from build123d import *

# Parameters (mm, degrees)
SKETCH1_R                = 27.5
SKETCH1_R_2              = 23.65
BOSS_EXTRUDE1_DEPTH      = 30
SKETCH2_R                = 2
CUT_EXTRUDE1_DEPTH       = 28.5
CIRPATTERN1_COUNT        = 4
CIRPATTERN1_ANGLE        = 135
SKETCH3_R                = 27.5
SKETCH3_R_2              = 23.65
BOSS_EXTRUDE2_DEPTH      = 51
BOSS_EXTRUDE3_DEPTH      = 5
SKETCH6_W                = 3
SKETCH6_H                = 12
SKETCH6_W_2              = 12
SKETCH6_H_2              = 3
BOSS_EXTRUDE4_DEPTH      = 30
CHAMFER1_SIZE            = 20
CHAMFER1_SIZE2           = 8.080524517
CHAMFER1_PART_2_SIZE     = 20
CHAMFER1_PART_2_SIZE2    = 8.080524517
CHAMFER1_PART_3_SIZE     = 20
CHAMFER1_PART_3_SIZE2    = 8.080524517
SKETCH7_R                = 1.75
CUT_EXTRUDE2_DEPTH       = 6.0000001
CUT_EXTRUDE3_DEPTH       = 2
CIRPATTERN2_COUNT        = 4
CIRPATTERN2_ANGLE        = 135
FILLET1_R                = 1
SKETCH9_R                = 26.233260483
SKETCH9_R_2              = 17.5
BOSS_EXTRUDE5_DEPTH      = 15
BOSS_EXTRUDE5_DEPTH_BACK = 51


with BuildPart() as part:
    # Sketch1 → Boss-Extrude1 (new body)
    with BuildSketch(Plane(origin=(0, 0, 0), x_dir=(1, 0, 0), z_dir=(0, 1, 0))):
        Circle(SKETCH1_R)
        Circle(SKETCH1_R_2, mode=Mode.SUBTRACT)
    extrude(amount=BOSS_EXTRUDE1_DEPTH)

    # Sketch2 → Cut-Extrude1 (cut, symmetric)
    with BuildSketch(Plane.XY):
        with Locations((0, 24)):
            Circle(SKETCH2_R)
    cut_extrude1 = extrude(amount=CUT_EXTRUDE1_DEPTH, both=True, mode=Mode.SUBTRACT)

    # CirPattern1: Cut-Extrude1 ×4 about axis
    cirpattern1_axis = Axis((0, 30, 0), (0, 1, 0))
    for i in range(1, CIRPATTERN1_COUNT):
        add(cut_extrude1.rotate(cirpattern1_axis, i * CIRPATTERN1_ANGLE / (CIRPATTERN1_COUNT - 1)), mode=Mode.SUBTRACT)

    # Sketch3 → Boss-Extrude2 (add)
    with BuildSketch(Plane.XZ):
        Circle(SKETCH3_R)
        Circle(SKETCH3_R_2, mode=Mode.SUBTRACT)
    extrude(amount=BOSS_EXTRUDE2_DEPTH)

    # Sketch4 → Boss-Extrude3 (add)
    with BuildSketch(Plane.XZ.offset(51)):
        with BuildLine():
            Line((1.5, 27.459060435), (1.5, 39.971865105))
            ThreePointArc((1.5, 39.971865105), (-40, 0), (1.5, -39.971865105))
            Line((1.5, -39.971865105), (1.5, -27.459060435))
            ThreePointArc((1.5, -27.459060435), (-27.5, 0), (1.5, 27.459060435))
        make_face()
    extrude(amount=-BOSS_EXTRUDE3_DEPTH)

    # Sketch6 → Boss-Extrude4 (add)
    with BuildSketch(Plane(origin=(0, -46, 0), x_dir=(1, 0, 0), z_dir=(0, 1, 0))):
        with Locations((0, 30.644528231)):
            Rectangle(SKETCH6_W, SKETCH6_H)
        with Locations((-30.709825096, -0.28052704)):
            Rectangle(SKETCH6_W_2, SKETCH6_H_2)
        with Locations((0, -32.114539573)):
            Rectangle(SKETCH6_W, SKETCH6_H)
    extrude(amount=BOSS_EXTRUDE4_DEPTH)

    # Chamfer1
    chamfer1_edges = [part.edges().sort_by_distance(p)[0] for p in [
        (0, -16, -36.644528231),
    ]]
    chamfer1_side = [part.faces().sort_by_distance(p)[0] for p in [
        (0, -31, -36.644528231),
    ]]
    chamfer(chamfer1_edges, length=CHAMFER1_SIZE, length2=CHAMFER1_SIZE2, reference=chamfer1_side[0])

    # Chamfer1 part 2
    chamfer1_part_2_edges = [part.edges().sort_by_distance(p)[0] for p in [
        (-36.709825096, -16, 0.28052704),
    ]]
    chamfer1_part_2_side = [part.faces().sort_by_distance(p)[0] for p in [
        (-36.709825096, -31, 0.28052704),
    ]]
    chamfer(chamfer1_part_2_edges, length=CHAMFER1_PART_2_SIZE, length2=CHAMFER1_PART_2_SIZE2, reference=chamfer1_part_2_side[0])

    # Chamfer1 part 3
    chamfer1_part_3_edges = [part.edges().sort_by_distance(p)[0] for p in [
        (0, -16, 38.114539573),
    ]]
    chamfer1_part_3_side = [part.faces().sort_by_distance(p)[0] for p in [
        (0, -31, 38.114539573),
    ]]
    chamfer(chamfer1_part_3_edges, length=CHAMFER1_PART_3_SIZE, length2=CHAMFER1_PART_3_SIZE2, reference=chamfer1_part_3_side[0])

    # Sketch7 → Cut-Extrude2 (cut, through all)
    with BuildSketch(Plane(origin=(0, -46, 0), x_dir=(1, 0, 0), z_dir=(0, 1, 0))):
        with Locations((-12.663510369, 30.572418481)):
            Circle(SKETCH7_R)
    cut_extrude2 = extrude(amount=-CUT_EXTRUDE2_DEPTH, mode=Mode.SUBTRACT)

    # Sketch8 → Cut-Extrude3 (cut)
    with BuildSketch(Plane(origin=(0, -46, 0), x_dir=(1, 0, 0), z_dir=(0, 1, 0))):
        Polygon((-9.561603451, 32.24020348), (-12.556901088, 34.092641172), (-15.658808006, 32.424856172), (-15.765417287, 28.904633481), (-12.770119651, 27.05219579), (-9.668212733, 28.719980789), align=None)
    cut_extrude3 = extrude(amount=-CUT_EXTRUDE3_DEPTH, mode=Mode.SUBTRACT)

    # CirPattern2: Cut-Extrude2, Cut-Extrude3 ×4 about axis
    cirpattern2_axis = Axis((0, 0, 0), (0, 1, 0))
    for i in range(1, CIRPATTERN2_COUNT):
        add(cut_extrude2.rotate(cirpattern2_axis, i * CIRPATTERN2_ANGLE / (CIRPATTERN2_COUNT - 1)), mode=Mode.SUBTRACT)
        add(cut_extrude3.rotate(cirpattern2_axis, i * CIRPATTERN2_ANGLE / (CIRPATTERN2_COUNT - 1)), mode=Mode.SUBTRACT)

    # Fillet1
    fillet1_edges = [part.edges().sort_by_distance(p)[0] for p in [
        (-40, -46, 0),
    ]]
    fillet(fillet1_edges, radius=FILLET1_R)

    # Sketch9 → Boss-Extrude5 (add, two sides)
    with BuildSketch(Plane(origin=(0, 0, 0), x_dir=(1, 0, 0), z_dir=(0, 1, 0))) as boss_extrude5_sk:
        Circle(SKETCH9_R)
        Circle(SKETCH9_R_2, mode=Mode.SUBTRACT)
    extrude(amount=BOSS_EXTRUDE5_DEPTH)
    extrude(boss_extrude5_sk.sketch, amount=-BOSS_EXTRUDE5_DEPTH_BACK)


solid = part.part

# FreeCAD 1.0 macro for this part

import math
import FreeCAD as App
import Part
import Sketcher
from FreeCAD import Vector
Q = App.Units.Quantity


def edges_at(feature, points):
    """Names of the edges that pass closest to the given points."""
    edges = feature.Shape.Edges
    near = lambda p: min(range(len(edges)), key=lambda i: edges[i].distToShape(Part.Vertex(*p))[0])
    return sorted({f"Edge{near(p) + 1}" for p in points})


def add_polygon(sketch, points):
    """Adds a closed chain of lines whose ends are joined by coincident constraints."""
    first, n = sketch.GeometryCount, len(points)
    for a, b in zip(points, points[1:] + points[:1]):
        sketch.addGeometry(Part.LineSegment(App.Vector(*a, 0), App.Vector(*b, 0)), False)
    for i in range(n):
        sketch.addConstraint(Sketcher.Constraint("Coincident", first + i, 2, first + (i + 1) % n, 1))

doc = App.newDocument("Part")
body = doc.addObject("PartDesign::Body", "Body")

# Sketch on XZ plane
sketch1 = body.newObject("Sketcher::SketchObject", "Sketch")
sketch1.AttachmentSupport = (doc.getObject("XZ_Plane"), [""])
sketch1.MapMode = "FlatFace"
sketch1.addGeometry(Part.Circle(Vector(0, 0, 0), Vector(0, 0, 1), 28), False)
sketch1.addGeometry(Part.Circle(Vector(0, 0, 0), Vector(0, 0, 1), 24), False)
sketch1.addConstraint(Sketcher.Constraint("Coincident", 0, 3, -1, 1))
sketch1.addConstraint(Sketcher.Constraint("Coincident", 1, 3, -1, 1))
sketch1.addConstraint(Sketcher.Constraint("Diameter", 0, Q("55 mm")))
sketch1.addConstraint(Sketcher.Constraint("Diameter", 1, Q("47.3 mm")))
pad1 = body.newObject("PartDesign::Pad", "Pad")
pad1.Profile = sketch1
pad1.Length = 30
pad1.Reversed = True

# Sketch on XY plane
sketch2 = body.newObject("Sketcher::SketchObject", "Sketch001")
sketch2.AttachmentSupport = (doc.getObject("XY_Plane"), [""])
sketch2.MapMode = "FlatFace"
sketch2.addGeometry(Part.Circle(Vector(0, 24, 0), Vector(0, 0, 1), 2), False)
sketch2.addConstraint(Sketcher.Constraint("PointOnObject", 0, 3, -2))
sketch2.addConstraint(Sketcher.Constraint("Diameter", 0, Q("4 mm")))
sketch2.addConstraint(Sketcher.Constraint("DistanceY", -1, 1, 0, 3, Q("24 mm")))
pocket1 = body.newObject("PartDesign::Pocket", "Pocket")
pocket1.Profile = sketch2
pocket1.Length = 57
pocket1.Midplane = True
doc.recompute()

polarpattern = body.newObject("PartDesign::PolarPattern", "PolarPattern")
polarpattern.Originals = [pocket1]
polarpattern.Axis = (doc.getObject("Y_Axis"), [""])
polarpattern.Angle = 135
polarpattern.Occurrences = 4
body.Tip = polarpattern

# Sketch on XZ plane
sketch3 = body.newObject("Sketcher::SketchObject", "Sketch002")
sketch3.AttachmentSupport = (doc.getObject("XZ_Plane"), [""])
sketch3.MapMode = "FlatFace"
sketch3.addGeometry(Part.Circle(Vector(0, 0, 0), Vector(0, 0, 1), 28), False)
sketch3.addGeometry(Part.Circle(Vector(0, 0, 0), Vector(0, 0, 1), 24), False)
sketch3.addConstraint(Sketcher.Constraint("Coincident", 0, 3, -1, 1))
sketch3.addConstraint(Sketcher.Constraint("Coincident", 1, 3, -1, 1))
sketch3.addConstraint(Sketcher.Constraint("Diameter", 0, Q("55 mm")))
sketch3.addConstraint(Sketcher.Constraint("Diameter", 1, Q("47.3 mm")))
pad2 = body.newObject("PartDesign::Pad", "Pad001")
pad2.Profile = sketch3
pad2.Length = 51

# Sketch on XZ plane
sketch4 = body.newObject("Sketcher::SketchObject", "Sketch003")
sketch4.AttachmentSupport = (doc.getObject("XZ_Plane"), [""])
sketch4.MapMode = "FlatFace"
sketch4.AttachmentOffset = App.Placement(Vector(0, 0, 51), App.Rotation())
sketch4.addGeometry(Part.LineSegment(Vector(2, 27, 0), Vector(2, 40, 0)), False)
sketch4.addGeometry(Part.ArcOfCircle(Part.Circle(Vector(0, 0, 0), Vector(0, 0, 1), 40), math.radians(88), math.radians(272)), False)
sketch4.addGeometry(Part.LineSegment(Vector(2, -40, 0), Vector(2, -27, 0)), False)
sketch4.addGeometry(Part.ArcOfCircle(Part.Circle(Vector(0, 0, 0), Vector(0, 0, 1), 28), math.radians(87), math.radians(273)), False)
sketch4.addConstraint(Sketcher.Constraint("Coincident", 0, 2, 1, 1))
sketch4.addConstraint(Sketcher.Constraint("Coincident", 1, 2, 2, 1))
sketch4.addConstraint(Sketcher.Constraint("Coincident", 2, 2, 3, 2))
sketch4.addConstraint(Sketcher.Constraint("Coincident", 3, 1, 0, 1))
sketch4.addConstraint(Sketcher.Constraint("Vertical", 0))
sketch4.addConstraint(Sketcher.Constraint("Vertical", 2))
sketch4.addConstraint(Sketcher.Constraint("Coincident", 1, 3, -1, 1))
sketch4.addConstraint(Sketcher.Constraint("Coincident", 3, 3, -1, 1))
sketch4.addConstraint(Sketcher.Constraint("Vertical", 0, 2, 1, 2))
sketch4.addConstraint(Sketcher.Constraint("Radius", 1, Q("40 mm")))
sketch4.addConstraint(Sketcher.Constraint("Radius", 3, Q("27.5 mm")))
sketch4.addConstraint(Sketcher.Constraint("DistanceX", -1, 1, 0, 2, Q("1.5 mm")))
pad3 = body.newObject("PartDesign::Pad", "Pad002")
pad3.Profile = sketch4
pad3.Length = 5
pad3.Reversed = True

# Sketch on XZ plane
sketch5 = body.newObject("Sketcher::SketchObject", "Sketch004")
sketch5.AttachmentSupport = (doc.getObject("XZ_Plane"), [""])
sketch5.MapMode = "FlatFace"
sketch5.AttachmentOffset = App.Placement(Vector(0, 0, 46), App.Rotation())
add_polygon(sketch5, [(-1.5, -36.6), (-1.5, -24.6), (1.5, -24.6), (1.5, -36.6)])  # lines 0-3
add_polygon(sketch5, [(-36.7, -1.2), (-36.7, 1.8), (-24.7, 1.8), (-24.7, -1.2)])  # lines 4-7
add_polygon(sketch5, [(-1.5, 26.1), (-1.5, 38.1), (1.5, 38.1), (1.5, 26.1)])  # lines 8-11
sketch5.addConstraint(Sketcher.Constraint("Vertical", 0))
sketch5.addConstraint(Sketcher.Constraint("Horizontal", 1))
sketch5.addConstraint(Sketcher.Constraint("Vertical", 2))
sketch5.addConstraint(Sketcher.Constraint("Horizontal", 3))
sketch5.addConstraint(Sketcher.Constraint("Vertical", 4))
sketch5.addConstraint(Sketcher.Constraint("Horizontal", 5))
sketch5.addConstraint(Sketcher.Constraint("Vertical", 6))
sketch5.addConstraint(Sketcher.Constraint("Horizontal", 7))
sketch5.addConstraint(Sketcher.Constraint("Vertical", 8))
sketch5.addConstraint(Sketcher.Constraint("Horizontal", 9))
sketch5.addConstraint(Sketcher.Constraint("Vertical", 10))
sketch5.addConstraint(Sketcher.Constraint("Horizontal", 11))
sketch5.addConstraint(Sketcher.Constraint("Vertical", 3, 2, 8, 2))
sketch5.addConstraint(Sketcher.Constraint("Vertical", 2, 2, 9, 2))
sketch5.addConstraint(Sketcher.Constraint("Equal", 7, 0))
sketch5.addConstraint(Sketcher.Constraint("Equal", 11, 4))
sketch5.addConstraint(Sketcher.Constraint("Equal", 2, 8))
sketch5.addConstraint(Sketcher.Constraint("DistanceX", 1, 1, 1, 2, Q("3 mm")))
sketch5.addConstraint(Sketcher.Constraint("DistanceX", 5, 1, 5, 2, Q("12 mm")))
sketch5.addConstraint(Sketcher.Constraint("DistanceX", 0, 2, -1, 1, Q("1.5 mm")))
sketch5.addConstraint(Sketcher.Constraint("DistanceY", 0, 2, -1, 1, Q("24.644528 mm")))
sketch5.addConstraint(Sketcher.Constraint("DistanceY", -1, 1, 8, 2, Q("38.11454 mm")))
sketch5.addConstraint(Sketcher.Constraint("DistanceX", 4, 2, -1, 1, Q("36.709825 mm")))
sketch5.addConstraint(Sketcher.Constraint("DistanceY", -1, 1, 4, 2, Q("1.780527 mm")))
pad4 = body.newObject("PartDesign::Pad", "Pad003")
pad4.Profile = sketch5
pad4.Length = 30
pad4.Reversed = True
doc.recompute()

chamfer = body.newObject("PartDesign::Chamfer", "Chamfer")
chamfer.Base = (pad4, edges_at(pad4, [(0, -16, -36.645)]))
chamfer.ChamferType = "Two distances"
chamfer.Size = 20
chamfer.Size2 = 8.080525
chamfer.FlipDirection = True
doc.recompute()

chamfer2 = body.newObject("PartDesign::Chamfer", "Chamfer001")
chamfer2.Base = (chamfer, edges_at(chamfer, [(-36.71, -16, 0.281)]))
chamfer2.ChamferType = "Two distances"
chamfer2.Size = 20
chamfer2.Size2 = 8.080525
chamfer2.FlipDirection = True
doc.recompute()

chamfer3 = body.newObject("PartDesign::Chamfer", "Chamfer002")
chamfer3.Base = (chamfer2, edges_at(chamfer2, [(0, -16, 38.115)]))
chamfer3.ChamferType = "Two distances"
chamfer3.Size = 20
chamfer3.Size2 = 8.080525
chamfer3.FlipDirection = True

# Sketch on XZ plane
sketch6 = body.newObject("Sketcher::SketchObject", "Sketch005")
sketch6.AttachmentSupport = (doc.getObject("XZ_Plane"), [""])
sketch6.MapMode = "FlatFace"
sketch6.AttachmentOffset = App.Placement(Vector(0, 0, 46), App.Rotation())
sketch6.addGeometry(Part.Circle(Vector(-12.7, -30.6, 0), Vector(0, 0, 1), 1.8), False)
sketch6.addConstraint(Sketcher.Constraint("Diameter", 0, Q("3.5 mm")))
sketch6.addConstraint(Sketcher.Constraint("DistanceX", 0, 3, -1, 1, Q("12.66351 mm")))
sketch6.addConstraint(Sketcher.Constraint("DistanceY", 0, 3, -1, 1, Q("30.572418 mm")))
pocket2 = body.newObject("PartDesign::Pocket", "Pocket001")
pocket2.Profile = sketch6
pocket2.Type = "ThroughAll"
pocket2.Reversed = True

# Sketch on XZ plane
sketch7 = body.newObject("Sketcher::SketchObject", "Sketch006")
sketch7.AttachmentSupport = (doc.getObject("XZ_Plane"), [""])
sketch7.MapMode = "FlatFace"
sketch7.AttachmentOffset = App.Placement(Vector(0, 0, 46), App.Rotation())
add_polygon(sketch7, [(-9.6, -32.2), (-12.6, -34.1), (-15.7, -32.4), (-15.8, -28.9), (-12.8, -27.1), (-9.7, -28.7)])  # lines 0-5
sketch7.addConstraint(Sketcher.Constraint("Parallel", 0, 3))
sketch7.addConstraint(Sketcher.Constraint("Parallel", 1, 4))
sketch7.addConstraint(Sketcher.Constraint("Parallel", 2, 5))
sketch7.addConstraint(Sketcher.Constraint("Equal", 0, 1))
sketch7.addConstraint(Sketcher.Constraint("Equal", 1, 2))
sketch7.addConstraint(Sketcher.Constraint("Equal", 2, 3))
sketch7.addConstraint(Sketcher.Constraint("DistanceX", 0, 2, -1, 1, Q("12.556901 mm")))
sketch7.addConstraint(Sketcher.Constraint("DistanceY", 0, 2, -1, 1, Q("34.092641 mm")))
sketch7.addConstraint(Sketcher.Constraint("DistanceX", 1, 2, -1, 1, Q("15.658808 mm")))
sketch7.addConstraint(Sketcher.Constraint("DistanceX", 3, 2, -1, 1, Q("12.77012 mm")))
sketch7.addConstraint(Sketcher.Constraint("DistanceY", 4, 2, -1, 1, Q("28.719981 mm")))
sketch7.addConstraint(Sketcher.Constraint("DistanceX", 2, 2, 1, 2, Q("0.106609 mm")))
pocket3 = body.newObject("PartDesign::Pocket", "Pocket002")
pocket3.Profile = sketch7
pocket3.Length = 2
pocket3.Reversed = True
doc.recompute()

polarpattern2 = body.newObject("PartDesign::PolarPattern", "PolarPattern001")
polarpattern2.Originals = [pocket2, pocket3]
polarpattern2.Axis = (doc.getObject("Y_Axis"), [""])
polarpattern2.Angle = 135
polarpattern2.Occurrences = 4
body.Tip = polarpattern2
doc.recompute()

fillet = body.newObject("PartDesign::Fillet", "Fillet")
fillet.Base = (polarpattern2, edges_at(polarpattern2, [(-40, -46, 0)]))
fillet.Radius = 1

# Sketch on XZ plane
sketch8 = body.newObject("Sketcher::SketchObject", "Sketch007")
sketch8.AttachmentSupport = (doc.getObject("XZ_Plane"), [""])
sketch8.MapMode = "FlatFace"
sketch8.addGeometry(Part.Circle(Vector(0, 0, 0), Vector(0, 0, 1), 26), False)
sketch8.addGeometry(Part.Circle(Vector(0, 0, 0), Vector(0, 0, 1), 18), False)
sketch8.addConstraint(Sketcher.Constraint("Coincident", 0, 3, -1, 1))
sketch8.addConstraint(Sketcher.Constraint("Coincident", 1, 3, -1, 1))
sketch8.addConstraint(Sketcher.Constraint("Diameter", 1, Q("35 mm")))
sketch8.addConstraint(Sketcher.Constraint("Diameter", 0, Q("52.466521 mm")))
pad5 = body.newObject("PartDesign::Pad", "Pad004")
pad5.Profile = sketch8
pad5.Type = "TwoLengths"
pad5.Length = 15
pad5.Length2 = 51
pad5.Reversed = True

doc.recompute()
